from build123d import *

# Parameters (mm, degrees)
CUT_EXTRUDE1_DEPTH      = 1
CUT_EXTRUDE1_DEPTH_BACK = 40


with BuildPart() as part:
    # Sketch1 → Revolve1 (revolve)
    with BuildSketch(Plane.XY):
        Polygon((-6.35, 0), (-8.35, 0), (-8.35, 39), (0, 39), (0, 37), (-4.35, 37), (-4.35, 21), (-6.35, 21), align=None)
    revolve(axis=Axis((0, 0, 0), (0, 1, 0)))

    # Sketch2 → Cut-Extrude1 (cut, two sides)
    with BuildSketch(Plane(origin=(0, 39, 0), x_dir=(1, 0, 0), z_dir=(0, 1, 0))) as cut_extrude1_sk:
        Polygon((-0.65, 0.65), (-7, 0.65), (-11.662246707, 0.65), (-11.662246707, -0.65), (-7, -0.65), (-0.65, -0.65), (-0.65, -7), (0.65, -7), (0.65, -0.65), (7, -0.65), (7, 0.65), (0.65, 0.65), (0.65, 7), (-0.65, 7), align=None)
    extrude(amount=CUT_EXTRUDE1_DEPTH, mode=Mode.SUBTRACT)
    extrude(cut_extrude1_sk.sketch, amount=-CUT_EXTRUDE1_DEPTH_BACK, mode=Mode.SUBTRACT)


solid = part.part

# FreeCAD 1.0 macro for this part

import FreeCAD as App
import Part
import Sketcher
from FreeCAD import Vector

doc = App.newDocument("Part")
body = doc.addObject("PartDesign::Body", "Body")

sketch1 = body.newObject("Sketcher::SketchObject", "Sketch")
sketch1.AttachmentSupport = (doc.getObject("XY_Plane"), [""])
sketch1.MapMode = "FlatFace"
sketch1.addGeometry([
    Part.LineSegment(Vector(-8.35, 0, 0), Vector(-6.35, 0, 0)),
    Part.LineSegment(Vector(-6.35, 0, 0), Vector(-6.35, 21, 0)),
    Part.LineSegment(Vector(-6.35, 21, 0), Vector(-4.35, 21, 0)),
    Part.LineSegment(Vector(-4.35, 21, 0), Vector(-4.35, 37, 0)),
    Part.LineSegment(Vector(-4.35, 37, 0), Vector(0, 37, 0)),
    Part.LineSegment(Vector(0, 37, 0), Vector(0, 39, 0)),
    Part.LineSegment(Vector(0, 39, 0), Vector(-8.35, 39, 0)),
    Part.LineSegment(Vector(-8.35, 39, 0), Vector(-8.35, 0, 0)),
], False)
sketch1.addConstraint([
    Sketcher.Constraint("Coincident", 0, 2, 1, 1),
    Sketcher.Constraint("Coincident", 1, 2, 2, 1),
    Sketcher.Constraint("Coincident", 2, 2, 3, 1),
    Sketcher.Constraint("Coincident", 3, 2, 4, 1),
    Sketcher.Constraint("Coincident", 4, 2, 5, 1),
    Sketcher.Constraint("Coincident", 5, 2, 6, 1),
    Sketcher.Constraint("Coincident", 6, 2, 7, 1),
    Sketcher.Constraint("Coincident", 7, 2, 0, 1),
    Sketcher.Constraint("Horizontal", 0),
    Sketcher.Constraint("Vertical", 1),
    Sketcher.Constraint("Horizontal", 2),
    Sketcher.Constraint("Vertical", 3),
    Sketcher.Constraint("Horizontal", 4),
    Sketcher.Constraint("Vertical", 5),
    Sketcher.Constraint("Horizontal", 6),
    Sketcher.Constraint("Vertical", 7),
    Sketcher.Constraint("PointOnObject", 0, 2, -1),
    Sketcher.Constraint("PointOnObject", 4, 2, -2),
    Sketcher.Constraint("Equal", 0, 2),
    Sketcher.Constraint("Equal", 2, 5),
    Sketcher.Constraint("DistanceX", 0, 1, 0, 2, 2.0),
    Sketcher.Constraint("DistanceY", 1, 1, 1, 2, 21.0),
    Sketcher.Constraint("DistanceY", 3, 1, 3, 2, 16.0),
    Sketcher.Constraint("DistanceX", 4, 1, 4, 2, 4.35),
])
revolution = body.newObject("PartDesign::Revolution", "Revolution")
revolution.Profile = sketch1
revolution.ReferenceAxis = (sketch1, ["V_Axis"])
revolution.Angle = 360

sketch2 = body.newObject("Sketcher::SketchObject", "Sketch001")
sketch2.AttachmentSupport = (doc.getObject("XZ_Plane"), [""])
sketch2.MapMode = "FlatFace"
sketch2.AttachmentOffset = App.Placement(Vector(0, 0, -39), App.Rotation())
sketch2.addGeometry([
    Part.LineSegment(Vector(-0.65, -0.65, 0), Vector(-11.662247, -0.65, 0)),
    Part.LineSegment(Vector(-11.662247, -0.65, 0), Vector(-11.662247, 0.65, 0)),
    Part.LineSegment(Vector(-11.662247, 0.65, 0), Vector(-0.65, 0.65, 0)),
    Part.LineSegment(Vector(-0.65, 0.65, 0), Vector(-0.65, 7, 0)),
    Part.LineSegment(Vector(-0.65, 7, 0), Vector(0.65, 7, 0)),
    Part.LineSegment(Vector(0.65, 7, 0), Vector(0.65, 0.65, 0)),
    Part.LineSegment(Vector(0.65, 0.65, 0), Vector(7, 0.65, 0)),
    Part.LineSegment(Vector(7, 0.65, 0), Vector(7, -0.65, 0)),
    Part.LineSegment(Vector(7, -0.65, 0), Vector(0.65, -0.65, 0)),
    Part.LineSegment(Vector(0.65, -0.65, 0), Vector(0.65, -7, 0)),
    Part.LineSegment(Vector(0.65, -7, 0), Vector(-0.65, -7, 0)),
    Part.LineSegment(Vector(-0.65, -7, 0), Vector(-0.65, -0.65, 0)),
], False)
sketch2.addConstraint([
    Sketcher.Constraint("Coincident", 0, 2, 1, 1),
    Sketcher.Constraint("Coincident", 1, 2, 2, 1),
    Sketcher.Constraint("Coincident", 2, 2, 3, 1),
    Sketcher.Constraint("Coincident", 3, 2, 4, 1),
    Sketcher.Constraint("Coincident", 4, 2, 5, 1),
    Sketcher.Constraint("Coincident", 5, 2, 6, 1),
    Sketcher.Constraint("Coincident", 6, 2, 7, 1),
    Sketcher.Constraint("Coincident", 7, 2, 8, 1),
    Sketcher.Constraint("Coincident", 8, 2, 9, 1),
    Sketcher.Constraint("Coincident", 9, 2, 10, 1),
    Sketcher.Constraint("Coincident", 10, 2, 11, 1),
    Sketcher.Constraint("Coincident", 11, 2, 0, 1),
    Sketcher.Constraint("Horizontal", 0),
    Sketcher.Constraint("Vertical", 1),
    Sketcher.Constraint("Horizontal", 2),
    Sketcher.Constraint("Vertical", 3),
    Sketcher.Constraint("Horizontal", 4),
    Sketcher.Constraint("Vertical", 5),
    Sketcher.Constraint("Horizontal", 6),
    Sketcher.Constraint("Vertical", 7),
    Sketcher.Constraint("Horizontal", 8),
    Sketcher.Constraint("Vertical", 9),
    Sketcher.Constraint("Horizontal", 10),
    Sketcher.Constraint("Vertical", 11),
    Sketcher.Constraint("Symmetric", 2, 2, 8, 2, -1, 1),
    Sketcher.Constraint("Symmetric", 4, 2, 10, 2, -1, 1),
    Sketcher.Constraint("Symmetric", 2, 2, 5, 2, -2),
    Sketcher.Constraint("Horizontal", 0, 2, 7, 2),
    Sketcher.Constraint("Equal", 10, 1),
    Sketcher.Constraint("Equal", 8, 3),
    Sketcher.Constraint("DistanceX", 4, 1, 4, 2, 1.3),
    Sketcher.Constraint("DistanceY", -1, 1, 3, 2, 7.0),
    Sketcher.Constraint("DistanceX", 0, 2, 0, 1, 11.012247),
])
pocket1 = body.newObject("PartDesign::Pocket", "Pocket")
pocket1.Profile = sketch2
pocket1.Type = "ThroughAll"
pocket1.Midplane = True

doc.recompute()
